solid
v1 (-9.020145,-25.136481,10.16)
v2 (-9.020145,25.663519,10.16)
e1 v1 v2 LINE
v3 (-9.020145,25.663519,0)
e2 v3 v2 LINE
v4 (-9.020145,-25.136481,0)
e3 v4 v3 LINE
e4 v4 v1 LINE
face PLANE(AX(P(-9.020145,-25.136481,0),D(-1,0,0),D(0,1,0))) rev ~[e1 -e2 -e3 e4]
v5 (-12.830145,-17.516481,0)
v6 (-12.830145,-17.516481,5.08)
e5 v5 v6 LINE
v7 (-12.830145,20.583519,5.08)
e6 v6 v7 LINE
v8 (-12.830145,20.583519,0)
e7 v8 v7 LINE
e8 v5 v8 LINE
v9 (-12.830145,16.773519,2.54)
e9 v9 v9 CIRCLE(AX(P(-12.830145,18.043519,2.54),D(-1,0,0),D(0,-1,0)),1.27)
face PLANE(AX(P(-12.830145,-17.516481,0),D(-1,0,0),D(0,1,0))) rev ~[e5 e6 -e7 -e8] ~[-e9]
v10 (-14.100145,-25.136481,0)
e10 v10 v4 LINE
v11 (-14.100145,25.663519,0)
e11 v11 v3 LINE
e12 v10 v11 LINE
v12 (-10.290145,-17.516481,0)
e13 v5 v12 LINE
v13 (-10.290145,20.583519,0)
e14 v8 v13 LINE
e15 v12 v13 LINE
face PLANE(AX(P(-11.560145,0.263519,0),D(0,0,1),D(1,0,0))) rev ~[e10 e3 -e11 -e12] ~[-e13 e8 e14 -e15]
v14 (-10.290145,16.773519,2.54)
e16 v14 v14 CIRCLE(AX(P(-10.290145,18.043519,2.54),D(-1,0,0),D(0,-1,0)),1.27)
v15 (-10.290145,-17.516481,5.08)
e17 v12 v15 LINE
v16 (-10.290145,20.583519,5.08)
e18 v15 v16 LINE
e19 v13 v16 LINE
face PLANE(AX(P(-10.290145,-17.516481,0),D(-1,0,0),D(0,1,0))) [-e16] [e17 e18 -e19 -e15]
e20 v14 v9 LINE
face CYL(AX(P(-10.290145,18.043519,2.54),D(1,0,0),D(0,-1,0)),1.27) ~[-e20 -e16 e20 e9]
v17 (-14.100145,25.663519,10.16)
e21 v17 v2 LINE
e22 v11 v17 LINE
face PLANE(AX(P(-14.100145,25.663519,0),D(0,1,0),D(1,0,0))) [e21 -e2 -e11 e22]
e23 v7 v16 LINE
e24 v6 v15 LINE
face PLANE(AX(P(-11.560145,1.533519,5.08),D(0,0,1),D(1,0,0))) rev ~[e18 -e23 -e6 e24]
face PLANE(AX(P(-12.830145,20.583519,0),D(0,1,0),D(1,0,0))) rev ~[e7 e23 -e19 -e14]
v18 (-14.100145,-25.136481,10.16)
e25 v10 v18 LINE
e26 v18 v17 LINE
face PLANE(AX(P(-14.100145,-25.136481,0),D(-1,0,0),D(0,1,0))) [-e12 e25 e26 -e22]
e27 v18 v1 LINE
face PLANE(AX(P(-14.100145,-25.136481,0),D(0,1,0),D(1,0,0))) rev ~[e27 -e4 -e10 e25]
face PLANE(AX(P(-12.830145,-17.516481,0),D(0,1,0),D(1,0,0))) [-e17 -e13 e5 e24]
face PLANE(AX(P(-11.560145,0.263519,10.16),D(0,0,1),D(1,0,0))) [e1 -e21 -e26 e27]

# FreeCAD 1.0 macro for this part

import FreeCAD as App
import Part
import Sketcher
from FreeCAD import Vector
Q = App.Units.Quantity

doc = App.newDocument("Part")
body = doc.addObject("PartDesign::Body", "Body")

sketch1 = body.newObject("Sketcher::SketchObject", "Sketch")
sketch1.AttachmentSupport = (doc.getObject("XY_Plane"), [""])
sketch1.MapMode = "FlatFace"
sketch1.addGeometry([
    Part.LineSegment(Vector(-14.100145, 25.663519, 0), Vector(-14.100145, -25.136481, 0)),
    Part.LineSegment(Vector(-14.100145, -25.136481, 0), Vector(-9.020145, -25.136481, 0)),
    Part.LineSegment(Vector(-9.020145, -25.136481, 0), Vector(-9.020145, 25.663519, 0)),
    Part.LineSegment(Vector(-9.020145, 25.663519, 0), Vector(-14.100145, 25.663519, 0)),
], False)
sketch1.addConstraint([
    Sketcher.Constraint("Coincident", 0, 2, 1, 1),
    Sketcher.Constraint("Coincident", 1, 2, 2, 1),
    Sketcher.Constraint("Coincident", 2, 2, 3, 1),
    Sketcher.Constraint("Coincident", 3, 2, 0, 1),
    Sketcher.Constraint("Vertical", 0),
    Sketcher.Constraint("Horizontal", 1),
    Sketcher.Constraint("Vertical", 2),
    Sketcher.Constraint("Horizontal", 3),
    Sketcher.Constraint("DistanceY", 0, 2, 0, 1, Q("2 in")),
    Sketcher.Constraint("DistanceX", 1, 1, 1, 2, Q("0.2 in")),
    Sketcher.Constraint("DistanceY", 0, 2, -1, 1, 25.136481),
    Sketcher.Constraint("DistanceX", 0, 2, -1, 1, 14.100145),
])
pad1 = body.newObject("PartDesign::Pad", "Pad")
pad1.Profile = sketch1
pad1.Length = Q("0.4 in")

sketch2 = body.newObject("Sketcher::SketchObject", "Sketch001")
sketch2.AttachmentSupport = (doc.getObject("XY_Plane"), [""])
sketch2.MapMode = "FlatFace"
sketch2.addGeometry([
    Part.LineSegment(Vector(-12.830145, 20.583519, 0), Vector(-12.830145, -17.516481, 0)),
    Part.LineSegment(Vector(-12.830145, -17.516481, 0), Vector(-10.290145, -17.516481, 0)),
    Part.LineSegment(Vector(-10.290145, -17.516481, 0), Vector(-10.290145, 20.583519, 0)),
    Part.LineSegment(Vector(-10.290145, 20.583519, 0), Vector(-12.830145, 20.583519, 0)),
], False)
sketch2.addConstraint([
    Sketcher.Constraint("Coincident", 0, 2, 1, 1),
    Sketcher.Constraint("Coincident", 1, 2, 2, 1),
    Sketcher.Constraint("Coincident", 2, 2, 3, 1),
    Sketcher.Constraint("Coincident", 3, 2, 0, 1),
    Sketcher.Constraint("Vertical", 0),
    Sketcher.Constraint("Horizontal", 1),
    Sketcher.Constraint("Vertical", 2),
    Sketcher.Constraint("Horizontal", 3),
    Sketcher.Constraint("DistanceX", 1, 1, 1, 2, Q("0.1 in")),
    Sketcher.Constraint("DistanceY", 0, 2, 0, 1, Q("1.5 in")),
    Sketcher.Constraint("DistanceY", 0, 2, -1, 1, 17.516481),
    Sketcher.Constraint("DistanceX", 0, 2, -1, 1, 12.830145),
])
pocket1 = body.newObject("PartDesign::Pocket", "Pocket")
pocket1.Profile = sketch2
pocket1.Length = Q("0.2 in")
pocket1.Reversed = True

sketch3 = body.newObject("Sketcher::SketchObject", "Sketch002")
sketch3.AttachmentSupport = (doc.getObject("YZ_Plane"), [""])
sketch3.MapMode = "FlatFace"
sketch3.AttachmentOffset = App.Placement(Vector(0, 0, -10.290145), App.Rotation())
sketch3.addGeometry(Part.Circle(Vector(18.043519, 2.54, 0), Vector(0, 0, 1), 1.27), False)
sketch3.addConstraint([
    Sketcher.Constraint("Diameter", 0, Q("0.1 in")),
    Sketcher.Constraint("DistanceY", -1, 1, 0, 3, Q("0.1 in")),
    Sketcher.Constraint("DistanceX", -1, 1, 0, 3, 18.043519),
])
pad2 = body.newObject("PartDesign::Pad", "Pad001")
pad2.Profile = sketch3
pad2.Length = Q("0.1 in")
pad2.Reversed = True

doc.recompute()
